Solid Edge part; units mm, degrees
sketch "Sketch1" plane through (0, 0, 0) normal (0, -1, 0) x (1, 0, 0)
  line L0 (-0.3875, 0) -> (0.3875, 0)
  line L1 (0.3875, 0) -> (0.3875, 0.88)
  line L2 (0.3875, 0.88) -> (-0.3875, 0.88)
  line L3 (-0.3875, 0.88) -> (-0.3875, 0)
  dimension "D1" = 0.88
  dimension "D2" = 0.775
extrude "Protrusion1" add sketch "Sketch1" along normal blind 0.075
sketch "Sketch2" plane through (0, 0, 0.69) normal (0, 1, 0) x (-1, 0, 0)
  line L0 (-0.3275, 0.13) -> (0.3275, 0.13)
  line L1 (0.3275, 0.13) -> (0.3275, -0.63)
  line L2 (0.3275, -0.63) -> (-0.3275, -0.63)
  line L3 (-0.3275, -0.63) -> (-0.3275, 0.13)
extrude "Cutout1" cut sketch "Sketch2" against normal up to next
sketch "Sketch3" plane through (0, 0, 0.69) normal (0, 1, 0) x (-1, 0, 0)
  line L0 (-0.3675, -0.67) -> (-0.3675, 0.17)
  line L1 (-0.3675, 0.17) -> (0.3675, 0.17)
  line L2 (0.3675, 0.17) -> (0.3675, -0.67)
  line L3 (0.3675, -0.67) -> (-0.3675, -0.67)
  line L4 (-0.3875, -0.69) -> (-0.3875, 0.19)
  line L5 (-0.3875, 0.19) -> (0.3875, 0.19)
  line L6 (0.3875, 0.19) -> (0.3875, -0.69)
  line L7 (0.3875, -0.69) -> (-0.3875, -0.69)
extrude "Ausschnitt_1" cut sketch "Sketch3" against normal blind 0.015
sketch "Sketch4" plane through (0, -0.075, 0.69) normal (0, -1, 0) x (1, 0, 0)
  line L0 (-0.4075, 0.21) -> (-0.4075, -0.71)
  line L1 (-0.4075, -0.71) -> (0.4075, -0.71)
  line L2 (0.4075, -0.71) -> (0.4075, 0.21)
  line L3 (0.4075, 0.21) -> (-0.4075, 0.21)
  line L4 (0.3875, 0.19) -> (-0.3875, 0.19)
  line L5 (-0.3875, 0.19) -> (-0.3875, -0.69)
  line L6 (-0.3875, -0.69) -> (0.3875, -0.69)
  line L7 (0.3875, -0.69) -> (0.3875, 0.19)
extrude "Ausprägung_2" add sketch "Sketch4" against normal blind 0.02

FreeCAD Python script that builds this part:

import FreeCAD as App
import Part
import Sketcher
Q = App.Units.Quantity

doc = App.newDocument("Part")
body = doc.addObject("PartDesign::Body", "Body")

# Sketch on XZ plane
sketch1 = body.newObject("Sketcher::SketchObject", "Sketch")
sketch1.AttachmentSupport = (doc.getObject("XZ_Plane"), [""])
sketch1.MapMode = "FlatFace"
sketch1.addGeometry([
    Part.LineSegment(App.Vector(-0.3875, 0.88, 0), App.Vector(-0.3875, 0, 0)),
    Part.LineSegment(App.Vector(-0.3875, 0, 0), App.Vector(0.3875, 0, 0)),
    Part.LineSegment(App.Vector(0.3875, 0, 0), App.Vector(0.3875, 0.88, 0)),
    Part.LineSegment(App.Vector(0.3875, 0.88, 0), App.Vector(-0.3875, 0.88, 0)),
], False)
sketch1.addConstraint([
    Sketcher.Constraint("Coincident", 0, 2, 1, 1),
    Sketcher.Constraint("Coincident", 1, 2, 2, 1),
    Sketcher.Constraint("Coincident", 2, 2, 3, 1),
    Sketcher.Constraint("Coincident", 3, 2, 0, 1),
    Sketcher.Constraint("Vertical", 0),
    Sketcher.Constraint("Horizontal", 1),
    Sketcher.Constraint("Vertical", 2),
    Sketcher.Constraint("Horizontal", 3),
    Sketcher.Constraint("Symmetric", 0, 2, 1, 2, -1, 1),
    Sketcher.Constraint("DistanceY", 0, 2, 0, 1, Q("0.88 mm")),
    Sketcher.Constraint("DistanceX", 0, 2, -1, 1, Q("0.3875 mm")),
])
pad1 = body.newObject("PartDesign::Pad", "Pad")
pad1.Profile = sketch1
pad1.Length = 0.075

# Sketch on XZ plane
sketch2 = body.newObject("Sketcher::SketchObject", "Sketch001")
sketch2.AttachmentSupport = (doc.getObject("XZ_Plane"), [""])
sketch2.MapMode = "FlatFace"
sketch2.addGeometry([
    Part.LineSegment(App.Vector(-0.3275, 0.82, 0), App.Vector(0.3275, 0.82, 0)),
    Part.LineSegment(App.Vector(0.3275, 0.82, 0), App.Vector(0.3275, 0.06, 0)),
    Part.LineSegment(App.Vector(0.3275, 0.06, 0), App.Vector(-0.3275, 0.06, 0)),
    Part.LineSegment(App.Vector(-0.3275, 0.06, 0), App.Vector(-0.3275, 0.82, 0)),
], False)
sketch2.addConstraint([
    Sketcher.Constraint("Coincident", 0, 2, 1, 1),
    Sketcher.Constraint("Coincident", 1, 2, 2, 1),
    Sketcher.Constraint("Coincident", 2, 2, 3, 1),
    Sketcher.Constraint("Coincident", 3, 2, 0, 1),
    Sketcher.Constraint("Horizontal", 0),
    Sketcher.Constraint("Vertical", 1),
    Sketcher.Constraint("Horizontal", 2),
    Sketcher.Constraint("Vertical", 3),
    Sketcher.Constraint("DistanceY", 1, 2, 1, 1, Q("0.76 mm")),
    Sketcher.Constraint("DistanceX", 0, 1, 0, 2, Q("0.655 mm")),
    Sketcher.Constraint("DistanceY", -1, 1, 0, 2, Q("0.82 mm")),
    Sketcher.Constraint("DistanceX", -1, 1, 0, 2, Q("0.3275 mm")),
])
pocket1 = body.newObject("PartDesign::Pocket", "Pocket")
pocket1.Profile = sketch2
pocket1.Type = "UpToFirst"
pocket1.Reversed = True

# Sketch on XZ plane
sketch3 = body.newObject("Sketcher::SketchObject", "Sketch002")
sketch3.AttachmentSupport = (doc.getObject("XZ_Plane"), [""])
sketch3.MapMode = "FlatFace"
sketch3.addGeometry([
    Part.LineSegment(App.Vector(0.3875, 0.88, 0), App.Vector(0.3875, 0, 0)),  # 0
    Part.LineSegment(App.Vector(0.3875, 0, 0), App.Vector(-0.3875, 0, 0)),  # 1
    Part.LineSegment(App.Vector(-0.3875, 0, 0), App.Vector(-0.3875, 0.88, 0)),  # 2
    Part.LineSegment(App.Vector(-0.3875, 0.88, 0), App.Vector(0.3875, 0.88, 0)),  # 3
    Part.LineSegment(App.Vector(-0.3675, 0.02, 0), App.Vector(0.3675, 0.02, 0)),  # 4
    Part.LineSegment(App.Vector(0.3675, 0.02, 0), App.Vector(0.3675, 0.86, 0)),  # 5
    Part.LineSegment(App.Vector(0.3675, 0.86, 0), App.Vector(-0.3675, 0.86, 0)),  # 6
    Part.LineSegment(App.Vector(-0.3675, 0.86, 0), App.Vector(-0.3675, 0.02, 0)),  # 7
], False)
sketch3.addConstraint([
    Sketcher.Constraint("Coincident", 0, 2, 1, 1),
    Sketcher.Constraint("Coincident", 1, 2, 2, 1),
    Sketcher.Constraint("Coincident", 2, 2, 3, 1),
    Sketcher.Constraint("Coincident", 3, 2, 0, 1),
    Sketcher.Constraint("Coincident", 4, 2, 5, 1),
    Sketcher.Constraint("Coincident", 5, 2, 6, 1),
    Sketcher.Constraint("Coincident", 6, 2, 7, 1),
    Sketcher.Constraint("Coincident", 7, 2, 4, 1),
    Sketcher.Constraint("Vertical", 0),
    Sketcher.Constraint("Horizontal", 1),
    Sketcher.Constraint("Vertical", 2),
    Sketcher.Constraint("Horizontal", 3),
    Sketcher.Constraint("Horizontal", 4),
    Sketcher.Constraint("Vertical", 5),
    Sketcher.Constraint("Horizontal", 6),
    Sketcher.Constraint("Vertical", 7),
    Sketcher.Constraint("Symmetric", 0, 2, 1, 2, -1, 1),
    Sketcher.Constraint("DistanceY", 0, 2, 0, 1, Q("0.88 mm")),
    Sketcher.Constraint("DistanceY", 5, 1, 5, 2, Q("0.84 mm")),
    Sketcher.Constraint("DistanceX", 1, 2, 1, 1, Q("0.775 mm")),
    Sketcher.Constraint("DistanceX", 4, 1, 4, 2, Q("0.735 mm")),
    Sketcher.Constraint("DistanceY", -1, 1, 4, 2, Q("0.02 mm")),
    Sketcher.Constraint("DistanceX", 4, 2, 0, 2, Q("0.02 mm")),
])
pocket2 = body.newObject("PartDesign::Pocket", "Pocket001")
pocket2.Profile = sketch3
pocket2.Length = 0.015
pocket2.Reversed = True

# Sketch on XZ plane
sketch4 = body.newObject("Sketcher::SketchObject", "Sketch003")
sketch4.AttachmentSupport = (doc.getObject("XZ_Plane"), [""])
sketch4.MapMode = "FlatFace"
sketch4.AttachmentOffset = App.Placement(App.Vector(0, 0, 0.075), App.Rotation())
sketch4.addGeometry([
    Part.LineSegment(App.Vector(0.4075, 0.9, 0), App.Vector(-0.4075, 0.9, 0)),  # 0
    Part.LineSegment(App.Vector(-0.4075, 0.9, 0), App.Vector(-0.4075, -0.02, 0)),  # 1
    Part.LineSegment(App.Vector(-0.4075, -0.02, 0), App.Vector(0.4075, -0.02, 0)),  # 2
    Part.LineSegment(App.Vector(0.4075, -0.02, 0), App.Vector(0.4075, 0.9, 0)),  # 3
    Part.LineSegment(App.Vector(-0.3875, 0.88, 0), App.Vector(0.3875, 0.88, 0)),  # 4
    Part.LineSegment(App.Vector(0.3875, 0.88, 0), App.Vector(0.3875, 0, 0)),  # 5
    Part.LineSegment(App.Vector(0.3875, 0, 0), App.Vector(-0.3875, 0, 0)),  # 6
    Part.LineSegment(App.Vector(-0.3875, 0, 0), App.Vector(-0.3875, 0.88, 0)),  # 7
], False)
sketch4.addConstraint([
    Sketcher.Constraint("Coincident", 0, 2, 1, 1),
    Sketcher.Constraint("Coincident", 1, 2, 2, 1),
    Sketcher.Constraint("Coincident", 2, 2, 3, 1),
    Sketcher.Constraint("Coincident", 3, 2, 0, 1),
    Sketcher.Constraint("Coincident", 4, 2, 5, 1),
    Sketcher.Constraint("Coincident", 5, 2, 6, 1),
    Sketcher.Constraint("Coincident", 6, 2, 7, 1),
    Sketcher.Constraint("Coincident", 7, 2, 4, 1),
    Sketcher.Constraint("Horizontal", 0),
    Sketcher.Constraint("Vertical", 1),
    Sketcher.Constraint("Horizontal", 2),
    Sketcher.Constraint("Vertical", 3),
    Sketcher.Constraint("Horizontal", 4),
    Sketcher.Constraint("Vertical", 5),
    Sketcher.Constraint("Horizontal", 6),
    Sketcher.Constraint("Vertical", 7),
    Sketcher.Constraint("Symmetric", 5, 2, 6, 2, -1, 1),
    Sketcher.Constraint("DistanceY", 1, 2, 1, 1, Q("0.92 mm")),
    Sketcher.Constraint("DistanceY", 5, 2, 5, 1, Q("0.88 mm")),
    Sketcher.Constraint("DistanceY", -1, 1, 0, 2, Q("0.9 mm")),
    Sketcher.Constraint("DistanceX", 0, 2, 0, 1, Q("0.815 mm")),
    Sketcher.Constraint("DistanceX", 4, 1, 4, 2, Q("0.775 mm")),
    Sketcher.Constraint("DistanceX", 4, 2, 3, 2, Q("0.02 mm")),
])
pad2 = body.newObject("PartDesign::Pad", "Pad001")
pad2.Profile = sketch4
pad2.Length = 0.02
pad2.Reversed = True

doc.recompute()
